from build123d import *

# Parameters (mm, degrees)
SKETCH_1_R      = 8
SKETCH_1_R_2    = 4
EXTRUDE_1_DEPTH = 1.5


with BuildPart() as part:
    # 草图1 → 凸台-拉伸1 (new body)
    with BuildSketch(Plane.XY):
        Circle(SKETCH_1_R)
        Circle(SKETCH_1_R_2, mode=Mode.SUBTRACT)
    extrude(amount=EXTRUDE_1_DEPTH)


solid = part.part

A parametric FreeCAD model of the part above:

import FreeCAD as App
import Part
import Sketcher

V = App.Vector
Q = App.Units.Quantity

doc = App.newDocument("Part")
body = doc.addObject("PartDesign::Body", "Body")

# Sketch on XY plane
sketch1 = doc.addObject("Sketcher::SketchObject", "Sketch")
body.addObject(sketch1)
sketch1.AttachmentSupport = (doc.XY_Plane, [""])
sketch1.MapMode = "FlatFace"
sketch1.addGeometry(Part.Circle(V(0, 0, 0), V(0, 0, 1), 8), False)
sketch1.addGeometry(Part.Circle(V(0, 0, 0), V(0, 0, 1), 4), False)
sketch1.addConstraint(Sketcher.Constraint("Coincident", 0, 3, -1, 1))
sketch1.addConstraint(Sketcher.Constraint("Coincident", 1, 3, -1, 1))
sketch1.addConstraint(Sketcher.Constraint("Diameter", 0, Q("16 mm")))
sketch1.addConstraint(Sketcher.Constraint("Diameter", 1, Q("8 mm")))
pad1 = doc.addObject("PartDesign::Pad", "Pad")
body.addObject(pad1)
pad1.Profile = sketch1
pad1.Length = 1.5

doc.recompute()
